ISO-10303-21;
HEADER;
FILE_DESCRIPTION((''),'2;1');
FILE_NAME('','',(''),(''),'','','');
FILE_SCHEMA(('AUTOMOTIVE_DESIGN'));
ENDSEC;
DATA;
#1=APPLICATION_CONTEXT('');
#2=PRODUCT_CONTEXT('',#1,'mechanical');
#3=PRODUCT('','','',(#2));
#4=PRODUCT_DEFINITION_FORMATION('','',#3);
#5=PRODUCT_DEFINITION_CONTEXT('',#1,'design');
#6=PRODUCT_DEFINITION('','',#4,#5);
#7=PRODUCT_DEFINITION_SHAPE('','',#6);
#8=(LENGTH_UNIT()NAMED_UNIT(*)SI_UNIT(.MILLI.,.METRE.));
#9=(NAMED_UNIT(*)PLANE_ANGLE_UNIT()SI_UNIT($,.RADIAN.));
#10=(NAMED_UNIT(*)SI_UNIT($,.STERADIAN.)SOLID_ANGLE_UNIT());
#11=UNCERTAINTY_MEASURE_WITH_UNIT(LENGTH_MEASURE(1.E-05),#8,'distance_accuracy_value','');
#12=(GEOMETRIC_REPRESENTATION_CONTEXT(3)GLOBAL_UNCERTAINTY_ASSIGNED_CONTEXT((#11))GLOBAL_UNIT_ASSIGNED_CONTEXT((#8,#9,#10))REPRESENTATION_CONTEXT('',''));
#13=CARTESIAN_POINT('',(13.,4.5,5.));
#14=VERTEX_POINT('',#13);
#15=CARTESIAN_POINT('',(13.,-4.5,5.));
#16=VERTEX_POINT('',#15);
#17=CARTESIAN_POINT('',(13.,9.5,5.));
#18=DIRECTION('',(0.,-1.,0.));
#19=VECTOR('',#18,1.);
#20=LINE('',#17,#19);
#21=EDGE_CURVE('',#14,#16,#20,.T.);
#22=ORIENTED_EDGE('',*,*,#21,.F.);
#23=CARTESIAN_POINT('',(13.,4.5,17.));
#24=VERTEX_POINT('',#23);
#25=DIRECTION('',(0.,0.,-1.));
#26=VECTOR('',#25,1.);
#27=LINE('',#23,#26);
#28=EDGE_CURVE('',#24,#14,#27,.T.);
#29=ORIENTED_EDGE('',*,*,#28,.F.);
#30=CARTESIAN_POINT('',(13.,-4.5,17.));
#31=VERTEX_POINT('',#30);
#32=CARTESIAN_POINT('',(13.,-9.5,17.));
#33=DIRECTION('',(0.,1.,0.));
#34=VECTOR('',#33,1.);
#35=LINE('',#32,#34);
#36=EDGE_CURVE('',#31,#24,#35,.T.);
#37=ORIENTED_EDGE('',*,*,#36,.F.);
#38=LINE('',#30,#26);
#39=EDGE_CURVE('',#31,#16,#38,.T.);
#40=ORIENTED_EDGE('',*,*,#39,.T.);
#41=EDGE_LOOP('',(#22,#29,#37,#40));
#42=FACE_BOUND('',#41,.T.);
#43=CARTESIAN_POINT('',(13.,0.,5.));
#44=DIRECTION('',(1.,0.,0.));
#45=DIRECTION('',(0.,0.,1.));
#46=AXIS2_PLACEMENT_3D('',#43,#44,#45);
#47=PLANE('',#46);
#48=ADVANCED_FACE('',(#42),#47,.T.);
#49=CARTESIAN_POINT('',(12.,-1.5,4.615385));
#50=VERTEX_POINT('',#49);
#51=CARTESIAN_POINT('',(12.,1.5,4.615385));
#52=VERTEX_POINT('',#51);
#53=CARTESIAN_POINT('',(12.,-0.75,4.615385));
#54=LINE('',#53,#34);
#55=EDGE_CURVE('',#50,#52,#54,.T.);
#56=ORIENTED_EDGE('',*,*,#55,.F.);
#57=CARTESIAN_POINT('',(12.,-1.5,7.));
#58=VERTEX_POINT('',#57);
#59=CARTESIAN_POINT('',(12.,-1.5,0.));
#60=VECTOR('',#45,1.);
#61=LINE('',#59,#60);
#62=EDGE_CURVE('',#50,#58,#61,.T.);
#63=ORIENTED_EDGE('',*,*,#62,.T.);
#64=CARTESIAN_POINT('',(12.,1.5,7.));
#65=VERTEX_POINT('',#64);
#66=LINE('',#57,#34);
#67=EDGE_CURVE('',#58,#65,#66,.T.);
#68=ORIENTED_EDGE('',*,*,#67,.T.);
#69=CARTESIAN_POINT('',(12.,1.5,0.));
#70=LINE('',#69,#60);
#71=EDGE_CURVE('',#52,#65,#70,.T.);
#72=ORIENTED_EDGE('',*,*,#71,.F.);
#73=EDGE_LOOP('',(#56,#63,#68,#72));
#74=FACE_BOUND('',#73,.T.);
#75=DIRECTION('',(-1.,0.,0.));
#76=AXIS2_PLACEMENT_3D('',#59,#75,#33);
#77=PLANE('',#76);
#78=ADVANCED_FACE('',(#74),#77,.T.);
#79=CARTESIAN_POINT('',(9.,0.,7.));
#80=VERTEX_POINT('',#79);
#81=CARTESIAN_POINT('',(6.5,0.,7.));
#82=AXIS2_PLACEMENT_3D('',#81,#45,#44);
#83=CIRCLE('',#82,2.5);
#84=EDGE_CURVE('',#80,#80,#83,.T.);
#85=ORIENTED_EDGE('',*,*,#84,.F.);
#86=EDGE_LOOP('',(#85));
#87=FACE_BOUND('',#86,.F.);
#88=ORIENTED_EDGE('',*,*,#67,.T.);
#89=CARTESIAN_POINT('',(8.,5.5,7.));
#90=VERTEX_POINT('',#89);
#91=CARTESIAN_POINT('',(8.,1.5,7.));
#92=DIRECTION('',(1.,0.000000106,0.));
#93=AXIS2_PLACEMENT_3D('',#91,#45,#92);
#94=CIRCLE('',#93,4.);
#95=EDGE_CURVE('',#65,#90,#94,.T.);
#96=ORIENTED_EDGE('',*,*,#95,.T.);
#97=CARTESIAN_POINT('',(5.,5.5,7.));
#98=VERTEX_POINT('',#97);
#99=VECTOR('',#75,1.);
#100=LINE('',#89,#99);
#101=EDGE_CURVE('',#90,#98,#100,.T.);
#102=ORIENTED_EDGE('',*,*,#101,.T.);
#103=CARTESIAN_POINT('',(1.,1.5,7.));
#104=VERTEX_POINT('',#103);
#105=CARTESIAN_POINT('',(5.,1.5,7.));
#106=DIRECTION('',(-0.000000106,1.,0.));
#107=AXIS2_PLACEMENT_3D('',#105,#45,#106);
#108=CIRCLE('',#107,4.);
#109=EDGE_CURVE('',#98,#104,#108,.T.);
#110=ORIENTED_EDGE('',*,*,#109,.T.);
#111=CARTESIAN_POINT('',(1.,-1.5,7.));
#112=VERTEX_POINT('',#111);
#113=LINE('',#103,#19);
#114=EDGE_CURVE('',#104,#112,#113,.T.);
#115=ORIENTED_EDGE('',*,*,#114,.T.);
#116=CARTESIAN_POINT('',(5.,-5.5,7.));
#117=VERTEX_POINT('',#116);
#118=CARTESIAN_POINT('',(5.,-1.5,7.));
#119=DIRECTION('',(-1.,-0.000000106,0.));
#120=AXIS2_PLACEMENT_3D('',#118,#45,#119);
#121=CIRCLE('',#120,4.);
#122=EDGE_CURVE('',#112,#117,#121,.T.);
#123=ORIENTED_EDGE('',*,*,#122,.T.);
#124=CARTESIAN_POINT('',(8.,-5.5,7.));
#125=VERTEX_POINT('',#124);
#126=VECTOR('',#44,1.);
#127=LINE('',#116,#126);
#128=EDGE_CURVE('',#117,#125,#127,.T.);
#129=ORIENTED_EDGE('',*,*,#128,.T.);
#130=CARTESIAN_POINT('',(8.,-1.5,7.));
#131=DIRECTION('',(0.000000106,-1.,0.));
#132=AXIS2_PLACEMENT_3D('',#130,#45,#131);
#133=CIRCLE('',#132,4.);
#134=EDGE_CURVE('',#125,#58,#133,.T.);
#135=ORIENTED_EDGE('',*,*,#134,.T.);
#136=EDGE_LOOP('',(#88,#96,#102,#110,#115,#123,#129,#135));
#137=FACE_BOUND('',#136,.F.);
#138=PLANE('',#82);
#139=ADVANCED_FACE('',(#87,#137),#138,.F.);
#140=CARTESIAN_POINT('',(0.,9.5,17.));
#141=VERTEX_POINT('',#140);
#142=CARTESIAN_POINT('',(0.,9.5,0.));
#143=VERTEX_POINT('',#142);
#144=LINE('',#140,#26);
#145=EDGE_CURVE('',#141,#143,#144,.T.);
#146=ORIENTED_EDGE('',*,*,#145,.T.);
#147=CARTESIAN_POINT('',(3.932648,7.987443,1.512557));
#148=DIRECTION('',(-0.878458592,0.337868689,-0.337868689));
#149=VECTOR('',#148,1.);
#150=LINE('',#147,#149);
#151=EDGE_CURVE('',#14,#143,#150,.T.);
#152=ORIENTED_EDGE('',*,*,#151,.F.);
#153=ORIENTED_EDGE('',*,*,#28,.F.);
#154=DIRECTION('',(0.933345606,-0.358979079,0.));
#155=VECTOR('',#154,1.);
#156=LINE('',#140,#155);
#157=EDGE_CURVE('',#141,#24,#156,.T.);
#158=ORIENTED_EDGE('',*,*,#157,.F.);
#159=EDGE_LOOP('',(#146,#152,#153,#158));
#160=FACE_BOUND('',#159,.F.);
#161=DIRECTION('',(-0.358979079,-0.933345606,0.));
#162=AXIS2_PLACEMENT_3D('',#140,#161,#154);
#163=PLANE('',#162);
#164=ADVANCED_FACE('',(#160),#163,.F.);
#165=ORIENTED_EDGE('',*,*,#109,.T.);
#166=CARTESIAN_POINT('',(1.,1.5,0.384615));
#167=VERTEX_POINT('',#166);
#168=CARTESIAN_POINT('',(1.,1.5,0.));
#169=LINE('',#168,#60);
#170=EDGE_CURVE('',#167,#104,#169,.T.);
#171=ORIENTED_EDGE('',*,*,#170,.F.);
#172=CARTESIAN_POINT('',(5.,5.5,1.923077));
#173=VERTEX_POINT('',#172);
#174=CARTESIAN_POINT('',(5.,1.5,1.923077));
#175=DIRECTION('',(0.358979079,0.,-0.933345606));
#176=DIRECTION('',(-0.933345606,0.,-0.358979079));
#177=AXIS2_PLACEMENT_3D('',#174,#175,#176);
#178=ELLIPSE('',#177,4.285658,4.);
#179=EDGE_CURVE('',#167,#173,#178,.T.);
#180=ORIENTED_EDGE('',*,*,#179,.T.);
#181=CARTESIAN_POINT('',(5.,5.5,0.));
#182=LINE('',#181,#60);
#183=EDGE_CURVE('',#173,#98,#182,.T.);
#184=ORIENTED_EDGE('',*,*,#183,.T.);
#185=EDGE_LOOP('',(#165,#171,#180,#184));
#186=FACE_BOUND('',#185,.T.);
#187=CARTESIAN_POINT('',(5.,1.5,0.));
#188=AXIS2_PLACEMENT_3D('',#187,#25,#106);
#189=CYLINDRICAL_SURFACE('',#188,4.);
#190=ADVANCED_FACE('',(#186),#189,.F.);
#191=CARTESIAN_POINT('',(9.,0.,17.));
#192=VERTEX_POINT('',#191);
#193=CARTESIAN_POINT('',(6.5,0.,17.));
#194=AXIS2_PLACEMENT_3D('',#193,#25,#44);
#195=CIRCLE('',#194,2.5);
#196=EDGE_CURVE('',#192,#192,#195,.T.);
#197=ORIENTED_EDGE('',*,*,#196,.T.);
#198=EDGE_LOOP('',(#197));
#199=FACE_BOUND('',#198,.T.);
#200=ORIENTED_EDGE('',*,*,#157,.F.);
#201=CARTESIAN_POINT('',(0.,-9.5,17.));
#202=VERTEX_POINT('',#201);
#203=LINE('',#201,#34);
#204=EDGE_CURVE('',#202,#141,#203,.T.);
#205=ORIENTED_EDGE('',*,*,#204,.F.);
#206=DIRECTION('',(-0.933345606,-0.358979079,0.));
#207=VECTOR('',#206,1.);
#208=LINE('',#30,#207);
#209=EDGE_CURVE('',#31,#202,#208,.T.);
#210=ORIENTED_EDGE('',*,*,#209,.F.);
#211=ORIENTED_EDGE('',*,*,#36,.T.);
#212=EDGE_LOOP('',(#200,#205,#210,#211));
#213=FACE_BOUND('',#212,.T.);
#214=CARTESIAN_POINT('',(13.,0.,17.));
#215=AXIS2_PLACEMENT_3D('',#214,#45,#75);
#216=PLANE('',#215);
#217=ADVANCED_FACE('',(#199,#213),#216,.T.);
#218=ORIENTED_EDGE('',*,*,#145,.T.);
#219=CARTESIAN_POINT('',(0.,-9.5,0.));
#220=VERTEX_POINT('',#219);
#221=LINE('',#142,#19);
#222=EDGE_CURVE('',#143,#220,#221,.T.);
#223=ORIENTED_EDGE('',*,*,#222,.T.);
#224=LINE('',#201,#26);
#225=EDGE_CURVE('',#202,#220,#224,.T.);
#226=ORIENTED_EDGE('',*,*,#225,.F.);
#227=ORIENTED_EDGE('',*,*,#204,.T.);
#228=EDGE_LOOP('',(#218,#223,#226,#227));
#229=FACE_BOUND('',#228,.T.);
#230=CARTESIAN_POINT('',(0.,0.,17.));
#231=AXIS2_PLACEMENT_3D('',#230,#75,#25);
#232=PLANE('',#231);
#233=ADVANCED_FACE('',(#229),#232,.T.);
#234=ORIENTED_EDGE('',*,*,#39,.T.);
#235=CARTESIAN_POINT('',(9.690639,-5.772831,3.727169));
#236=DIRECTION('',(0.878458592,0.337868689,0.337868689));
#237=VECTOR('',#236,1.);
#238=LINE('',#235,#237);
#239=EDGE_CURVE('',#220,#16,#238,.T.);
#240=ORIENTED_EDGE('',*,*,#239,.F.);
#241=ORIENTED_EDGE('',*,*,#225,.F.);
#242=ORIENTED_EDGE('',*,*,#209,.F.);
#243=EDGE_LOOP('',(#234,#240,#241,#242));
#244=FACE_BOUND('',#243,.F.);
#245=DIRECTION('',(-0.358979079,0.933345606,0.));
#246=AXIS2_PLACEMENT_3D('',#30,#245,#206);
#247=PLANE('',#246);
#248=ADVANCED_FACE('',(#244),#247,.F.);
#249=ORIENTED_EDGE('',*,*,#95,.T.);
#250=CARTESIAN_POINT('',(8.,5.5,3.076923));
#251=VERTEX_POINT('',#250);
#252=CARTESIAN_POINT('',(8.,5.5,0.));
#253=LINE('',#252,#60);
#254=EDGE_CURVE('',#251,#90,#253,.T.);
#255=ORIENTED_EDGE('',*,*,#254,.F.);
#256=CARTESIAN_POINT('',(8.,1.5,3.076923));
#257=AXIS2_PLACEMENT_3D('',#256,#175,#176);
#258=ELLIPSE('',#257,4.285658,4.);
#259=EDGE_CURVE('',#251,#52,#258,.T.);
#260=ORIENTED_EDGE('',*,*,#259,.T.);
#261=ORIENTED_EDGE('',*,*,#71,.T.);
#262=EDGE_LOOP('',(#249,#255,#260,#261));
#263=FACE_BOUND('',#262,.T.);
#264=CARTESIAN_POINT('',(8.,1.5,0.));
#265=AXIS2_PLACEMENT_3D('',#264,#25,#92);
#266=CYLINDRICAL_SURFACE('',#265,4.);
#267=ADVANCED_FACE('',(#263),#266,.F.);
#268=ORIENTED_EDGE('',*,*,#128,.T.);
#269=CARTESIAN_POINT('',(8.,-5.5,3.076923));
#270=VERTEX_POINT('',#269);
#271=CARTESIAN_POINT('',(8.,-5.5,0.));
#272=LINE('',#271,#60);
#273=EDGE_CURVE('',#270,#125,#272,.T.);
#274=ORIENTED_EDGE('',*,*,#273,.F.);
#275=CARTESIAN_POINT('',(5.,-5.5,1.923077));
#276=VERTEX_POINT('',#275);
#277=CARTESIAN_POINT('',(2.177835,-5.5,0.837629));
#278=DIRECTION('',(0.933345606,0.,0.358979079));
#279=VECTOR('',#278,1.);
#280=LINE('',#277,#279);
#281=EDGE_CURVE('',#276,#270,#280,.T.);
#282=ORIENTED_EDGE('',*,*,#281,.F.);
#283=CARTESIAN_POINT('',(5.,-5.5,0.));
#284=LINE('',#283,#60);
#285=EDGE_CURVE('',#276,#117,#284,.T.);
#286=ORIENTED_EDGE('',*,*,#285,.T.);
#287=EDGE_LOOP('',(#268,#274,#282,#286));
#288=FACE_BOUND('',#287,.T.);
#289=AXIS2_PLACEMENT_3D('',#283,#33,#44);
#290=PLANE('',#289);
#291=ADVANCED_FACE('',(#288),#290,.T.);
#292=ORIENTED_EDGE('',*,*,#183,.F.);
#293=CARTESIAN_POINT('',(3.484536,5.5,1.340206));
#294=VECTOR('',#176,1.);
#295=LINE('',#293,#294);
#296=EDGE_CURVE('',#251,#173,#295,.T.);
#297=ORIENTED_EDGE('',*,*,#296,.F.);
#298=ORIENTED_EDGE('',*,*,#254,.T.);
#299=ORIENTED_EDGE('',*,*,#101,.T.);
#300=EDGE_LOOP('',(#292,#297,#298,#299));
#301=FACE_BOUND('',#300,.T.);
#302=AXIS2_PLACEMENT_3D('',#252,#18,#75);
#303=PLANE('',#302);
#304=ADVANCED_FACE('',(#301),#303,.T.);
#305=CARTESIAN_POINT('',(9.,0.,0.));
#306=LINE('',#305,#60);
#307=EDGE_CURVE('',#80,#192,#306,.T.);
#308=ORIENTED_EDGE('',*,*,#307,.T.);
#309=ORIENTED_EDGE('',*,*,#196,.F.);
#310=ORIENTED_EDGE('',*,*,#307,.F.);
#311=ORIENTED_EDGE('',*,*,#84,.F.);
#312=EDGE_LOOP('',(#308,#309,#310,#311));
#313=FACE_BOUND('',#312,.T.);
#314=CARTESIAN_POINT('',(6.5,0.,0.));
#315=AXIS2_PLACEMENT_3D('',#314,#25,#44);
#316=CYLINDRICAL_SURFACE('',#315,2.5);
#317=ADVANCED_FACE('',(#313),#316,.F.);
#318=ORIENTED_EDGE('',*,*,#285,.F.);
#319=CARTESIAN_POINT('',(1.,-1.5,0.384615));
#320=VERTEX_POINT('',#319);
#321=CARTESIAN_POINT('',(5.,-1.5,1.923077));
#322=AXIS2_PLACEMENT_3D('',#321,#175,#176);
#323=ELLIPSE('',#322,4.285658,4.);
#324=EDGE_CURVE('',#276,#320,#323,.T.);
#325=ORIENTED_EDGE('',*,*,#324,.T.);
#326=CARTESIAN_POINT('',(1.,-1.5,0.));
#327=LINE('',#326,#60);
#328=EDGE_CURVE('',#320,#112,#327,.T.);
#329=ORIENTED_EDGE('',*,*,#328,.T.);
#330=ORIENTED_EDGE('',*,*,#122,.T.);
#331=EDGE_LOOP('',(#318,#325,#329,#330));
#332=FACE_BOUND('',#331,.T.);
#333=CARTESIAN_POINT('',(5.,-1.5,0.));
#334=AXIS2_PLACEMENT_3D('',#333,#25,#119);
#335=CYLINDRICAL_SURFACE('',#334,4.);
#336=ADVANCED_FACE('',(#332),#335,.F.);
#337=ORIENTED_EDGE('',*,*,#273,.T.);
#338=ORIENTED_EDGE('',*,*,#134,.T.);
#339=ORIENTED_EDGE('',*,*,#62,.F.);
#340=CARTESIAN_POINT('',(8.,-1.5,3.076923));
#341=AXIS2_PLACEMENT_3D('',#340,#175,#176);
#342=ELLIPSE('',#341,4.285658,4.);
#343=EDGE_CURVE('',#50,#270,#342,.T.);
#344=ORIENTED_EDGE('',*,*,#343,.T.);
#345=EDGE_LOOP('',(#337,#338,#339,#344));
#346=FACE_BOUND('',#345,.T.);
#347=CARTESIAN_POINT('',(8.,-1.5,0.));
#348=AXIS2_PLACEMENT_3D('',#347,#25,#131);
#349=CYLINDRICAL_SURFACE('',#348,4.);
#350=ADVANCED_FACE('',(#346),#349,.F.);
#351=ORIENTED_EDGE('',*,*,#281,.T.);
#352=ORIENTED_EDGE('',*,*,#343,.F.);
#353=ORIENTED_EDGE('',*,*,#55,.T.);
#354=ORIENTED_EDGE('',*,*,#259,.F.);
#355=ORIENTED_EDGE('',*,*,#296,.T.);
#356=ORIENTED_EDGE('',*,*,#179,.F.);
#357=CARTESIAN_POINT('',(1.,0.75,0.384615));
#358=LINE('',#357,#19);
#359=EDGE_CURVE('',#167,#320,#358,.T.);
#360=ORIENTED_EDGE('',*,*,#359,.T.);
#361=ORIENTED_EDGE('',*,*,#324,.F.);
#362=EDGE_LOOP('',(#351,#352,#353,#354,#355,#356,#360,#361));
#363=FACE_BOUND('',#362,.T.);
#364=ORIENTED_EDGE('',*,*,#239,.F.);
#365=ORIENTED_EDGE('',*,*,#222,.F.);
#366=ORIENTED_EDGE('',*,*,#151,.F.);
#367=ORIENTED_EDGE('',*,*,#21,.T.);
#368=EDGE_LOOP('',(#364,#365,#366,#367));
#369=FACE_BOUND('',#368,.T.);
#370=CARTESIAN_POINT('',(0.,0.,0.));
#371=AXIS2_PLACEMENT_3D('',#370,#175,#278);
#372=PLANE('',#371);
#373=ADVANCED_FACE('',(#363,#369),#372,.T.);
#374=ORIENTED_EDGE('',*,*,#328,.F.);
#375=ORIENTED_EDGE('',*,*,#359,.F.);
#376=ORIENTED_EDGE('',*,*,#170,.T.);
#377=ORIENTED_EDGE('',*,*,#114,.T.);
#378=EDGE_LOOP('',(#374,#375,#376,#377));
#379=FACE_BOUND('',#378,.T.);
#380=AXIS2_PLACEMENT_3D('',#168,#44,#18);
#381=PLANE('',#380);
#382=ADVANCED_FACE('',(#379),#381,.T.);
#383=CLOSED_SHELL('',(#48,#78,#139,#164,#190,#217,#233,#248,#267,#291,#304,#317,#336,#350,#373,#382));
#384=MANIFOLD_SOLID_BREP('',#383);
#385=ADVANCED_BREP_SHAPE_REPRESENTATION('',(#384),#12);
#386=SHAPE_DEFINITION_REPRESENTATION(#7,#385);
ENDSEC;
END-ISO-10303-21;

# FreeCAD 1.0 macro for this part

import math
import FreeCAD as App
import Part
import Sketcher
from FreeCAD import Vector
Q = App.Units.Quantity

doc = App.newDocument("Part")
body = doc.addObject("PartDesign::Body", "Body")

# Sketch on XZ plane
sketch1 = body.newObject("Sketcher::SketchObject", "Sketch")
sketch1.AttachmentSupport = (doc.getObject("XZ_Plane"), [""])
sketch1.MapMode = "FlatFace"
sketch1.addGeometry([
    Part.LineSegment(Vector(0, 17, 0), Vector(0, 0, 0)),
    Part.LineSegment(Vector(0, 0, 0), Vector(13, 5, 0)),
    Part.LineSegment(Vector(13, 5, 0), Vector(13, 17, 0)),
    Part.LineSegment(Vector(13, 17, 0), Vector(0, 17, 0)),
], False)
sketch1.addConstraint([
    Sketcher.Constraint("Coincident", 0, 2, 1, 1),
    Sketcher.Constraint("Coincident", 1, 2, 2, 1),
    Sketcher.Constraint("Coincident", 2, 2, 3, 1),
    Sketcher.Constraint("Coincident", 3, 2, 0, 1),
    Sketcher.Constraint("Vertical", 0),
    Sketcher.Constraint("Vertical", 2),
    Sketcher.Constraint("Horizontal", 3),
    Sketcher.Constraint("Coincident", 0, 2, -1, 1),
    Sketcher.Constraint("DistanceX", 3, 2, 3, 1, Q("13 mm")),
    Sketcher.Constraint("DistanceY", 0, 2, 0, 1, Q("17 mm")),
    Sketcher.Constraint("DistanceY", 2, 1, 2, 2, Q("12 mm")),
])
pad1 = body.newObject("PartDesign::Pad", "Pad")
pad1.Profile = sketch1
pad1.Length = 19
pad1.Midplane = True

# Sketch on XY plane
sketch2 = body.newObject("Sketcher::SketchObject", "Sketch001")
sketch2.AttachmentSupport = (doc.getObject("XY_Plane"), [""])
sketch2.MapMode = "FlatFace"
sketch2.AttachmentOffset = App.Placement(Vector(0, 0, 17), App.Rotation())
sketch2.addGeometry([
    Part.LineSegment(Vector(13, 9.5, 0), Vector(0, 9.5, 0)),  # 0
    Part.LineSegment(Vector(0, 9.5, 0), Vector(13, 4.5, 0)),  # 1
    Part.LineSegment(Vector(13, 4.5, 0), Vector(13, 9.5, 0)),  # 2
    Part.LineSegment(Vector(13, -9.5, 0), Vector(13, -4.5, 0)),  # 3
    Part.LineSegment(Vector(13, -4.5, 0), Vector(0, -9.5, 0)),  # 4
    Part.LineSegment(Vector(0, -9.5, 0), Vector(13, -9.5, 0)),  # 5
], False)
sketch2.addConstraint([
    Sketcher.Constraint("Coincident", 0, 2, 1, 1),
    Sketcher.Constraint("Coincident", 1, 2, 2, 1),
    Sketcher.Constraint("Coincident", 2, 2, 0, 1),
    Sketcher.Constraint("Coincident", 3, 2, 4, 1),
    Sketcher.Constraint("Coincident", 4, 2, 5, 1),
    Sketcher.Constraint("Coincident", 5, 2, 3, 1),
    Sketcher.Constraint("Horizontal", 0),
    Sketcher.Constraint("Vertical", 2),
    Sketcher.Constraint("Vertical", 3),
    Sketcher.Constraint("Horizontal", 5),
    Sketcher.Constraint("Symmetric", 0, 2, 4, 2, -1, 1),
    Sketcher.Constraint("Symmetric", 1, 2, 3, 2, -1),
    Sketcher.Constraint("PointOnObject", 0, 2, -2),
    Sketcher.Constraint("DistanceX", 0, 2, 0, 1, Q("13 mm")),
    Sketcher.Constraint("DistanceY", 2, 1, 2, 2, Q("5 mm")),
    Sketcher.Constraint("DistanceY", 3, 2, 1, 2, Q("9 mm")),
])
pocket1 = body.newObject("PartDesign::Pocket", "Pocket")
pocket1.Profile = sketch2
pocket1.Length = 25

# Sketch on XY plane
sketch3 = body.newObject("Sketcher::SketchObject", "Sketch002")
sketch3.AttachmentSupport = (doc.getObject("XY_Plane"), [""])
sketch3.MapMode = "FlatFace"
sketch3.addGeometry([
    Part.ArcOfCircle(Part.Circle(Vector(8, 1.5, 0), Vector(0, 0, 1), 4), math.radians(0.000006), math.radians(89.999994)),  # 0
    Part.LineSegment(Vector(8, 5.5, 0), Vector(5, 5.5, 0)),  # 1
    Part.ArcOfCircle(Part.Circle(Vector(5, 1.5, 0), Vector(0, 0, 1), 4), math.radians(90.000006), math.radians(179.999994)),  # 2
    Part.LineSegment(Vector(1, 1.5, 0), Vector(1, -1.5, 0)),  # 3
    Part.ArcOfCircle(Part.Circle(Vector(5, -1.5, 0), Vector(0, 0, 1), 4), math.radians(-179.999994), math.radians(-90.000006)),  # 4
    Part.LineSegment(Vector(5, -5.5, 0), Vector(8, -5.5, 0)),  # 5
    Part.ArcOfCircle(Part.Circle(Vector(8, -1.5, 0), Vector(0, 0, 1), 4), math.radians(-89.999994), math.radians(-0.000006)),  # 6
    Part.LineSegment(Vector(12, -1.5, 0), Vector(12, 1.5, 0)),  # 7
    Part.Circle(Vector(6.5, 0, 0), Vector(0, 0, 1), 2.5),  # 8
], False)
sketch3.addConstraint([
    Sketcher.Constraint("Tangent", 0, 2, 1, 1),
    Sketcher.Constraint("Tangent", 1, 2, 2, 1),
    Sketcher.Constraint("Tangent", 2, 2, 3, 1),
    Sketcher.Constraint("Tangent", 3, 2, 4, 1),
    Sketcher.Constraint("Tangent", 4, 2, 5, 1),
    Sketcher.Constraint("Tangent", 5, 2, 6, 1),
    Sketcher.Constraint("Tangent", 6, 2, 7, 1),
    Sketcher.Constraint("Tangent", 7, 2, 0, 1),
    Sketcher.Constraint("Horizontal", 1),
    Sketcher.Constraint("Vertical", 3),
    Sketcher.Constraint("Horizontal", 5),
    Sketcher.Constraint("Vertical", 7),
    Sketcher.Constraint("Equal", 0, 2),
    Sketcher.Constraint("Equal", 2, 4),
    Sketcher.Constraint("Equal", 4, 6),
    Sketcher.Constraint("PointOnObject", 8, 3, -1),
    Sketcher.Constraint("Equal", 5, 3),
    Sketcher.Constraint("Diameter", 8, Q("5 mm")),
    Sketcher.Constraint("Radius", 0, Q("4 mm")),
    Sketcher.Constraint("DistanceX", 1, 2, 1, 1, Q("3 mm")),
    Sketcher.Constraint("DistanceX", -1, 1, 0, 3, Q("8 mm")),
    Sketcher.Constraint("DistanceY", -1, 1, 0, 3, Q("1.5 mm")),
    Sketcher.Constraint("DistanceX", -1, 1, 8, 3, Q("6.5 mm")),
])
pocket2 = body.newObject("PartDesign::Pocket", "Pocket001")
pocket2.Profile = sketch3
pocket2.Length = 7
pocket2.Reversed = True

# Sketch on XY plane
sketch4 = body.newObject("Sketcher::SketchObject", "Sketch003")
sketch4.AttachmentSupport = (doc.getObject("XY_Plane"), [""])
sketch4.MapMode = "FlatFace"
sketch4.addGeometry(Part.Circle(Vector(6.5, 0, 0), Vector(0, 0, 1), 2.5), False)
sketch4.addConstraint([
    Sketcher.Constraint("PointOnObject", 0, 3, -1),
    Sketcher.Constraint("Diameter", 0, Q("5 mm")),
    Sketcher.Constraint("DistanceX", -1, 1, 0, 3, Q("6.5 mm")),
])
pocket3 = body.newObject("PartDesign::Pocket", "Pocket002")
pocket3.Profile = sketch4
pocket3.Length = 25
pocket3.Reversed = True

doc.recompute()
